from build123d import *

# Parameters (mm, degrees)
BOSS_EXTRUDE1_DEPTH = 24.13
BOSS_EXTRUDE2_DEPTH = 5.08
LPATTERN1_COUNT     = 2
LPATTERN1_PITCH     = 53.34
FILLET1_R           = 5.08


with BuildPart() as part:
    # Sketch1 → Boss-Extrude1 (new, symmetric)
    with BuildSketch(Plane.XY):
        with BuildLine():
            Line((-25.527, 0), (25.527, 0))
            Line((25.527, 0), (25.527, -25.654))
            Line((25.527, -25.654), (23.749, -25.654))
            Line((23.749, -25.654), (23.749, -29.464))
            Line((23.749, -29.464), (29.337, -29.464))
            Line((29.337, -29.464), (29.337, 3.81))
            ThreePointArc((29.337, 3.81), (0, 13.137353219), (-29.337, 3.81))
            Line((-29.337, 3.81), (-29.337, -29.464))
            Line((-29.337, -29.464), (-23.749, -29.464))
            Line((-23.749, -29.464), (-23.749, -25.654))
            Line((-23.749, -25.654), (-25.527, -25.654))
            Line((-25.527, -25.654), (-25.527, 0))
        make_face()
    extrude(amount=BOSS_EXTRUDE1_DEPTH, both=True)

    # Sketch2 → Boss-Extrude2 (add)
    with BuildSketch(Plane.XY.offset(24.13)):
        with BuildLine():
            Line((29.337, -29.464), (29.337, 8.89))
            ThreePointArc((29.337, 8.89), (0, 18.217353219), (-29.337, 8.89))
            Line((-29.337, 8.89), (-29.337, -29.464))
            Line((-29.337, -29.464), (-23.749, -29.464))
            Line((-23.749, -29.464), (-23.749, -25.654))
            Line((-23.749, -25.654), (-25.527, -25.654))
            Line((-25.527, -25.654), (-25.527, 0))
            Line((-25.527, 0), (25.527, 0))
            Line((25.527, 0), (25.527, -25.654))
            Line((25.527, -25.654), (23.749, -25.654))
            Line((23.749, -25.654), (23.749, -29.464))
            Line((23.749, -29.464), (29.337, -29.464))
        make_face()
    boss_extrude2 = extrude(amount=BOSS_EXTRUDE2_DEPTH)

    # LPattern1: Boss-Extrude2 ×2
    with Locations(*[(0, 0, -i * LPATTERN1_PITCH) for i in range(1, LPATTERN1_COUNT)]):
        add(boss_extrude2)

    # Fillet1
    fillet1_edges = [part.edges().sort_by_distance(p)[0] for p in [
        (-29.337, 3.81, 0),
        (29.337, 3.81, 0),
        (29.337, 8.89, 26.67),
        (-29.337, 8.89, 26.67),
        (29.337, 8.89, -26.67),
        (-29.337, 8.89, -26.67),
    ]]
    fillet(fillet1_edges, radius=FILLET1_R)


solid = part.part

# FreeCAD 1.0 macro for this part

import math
import FreeCAD as App
import Part
import Sketcher
from FreeCAD import Vector
Q = App.Units.Quantity


def edges_at(feature, points):
    """Names of the edges that pass closest to the given points."""
    edges = feature.Shape.Edges
    near = lambda p: min(range(len(edges)), key=lambda i: edges[i].distToShape(Part.Vertex(*p))[0])
    return sorted({f"Edge{near(p) + 1}" for p in points})

doc = App.newDocument("Part")
body = doc.addObject("PartDesign::Body", "Body")

sketch1 = body.newObject("Sketcher::SketchObject", "Sketch")
sketch1.AttachmentSupport = (doc.getObject("XY_Plane"), [""])
sketch1.MapMode = "FlatFace"
sketch1.addGeometry([
    Part.LineSegment(Vector(-25.5, 0, 0), Vector(25.5, 0, 0)),
    Part.LineSegment(Vector(25.5, 0, 0), Vector(25.5, -25.7, 0)),
    Part.LineSegment(Vector(25.5, -25.7, 0), Vector(23.7, -25.7, 0)),
    Part.LineSegment(Vector(23.7, -25.7, 0), Vector(23.7, -29.5, 0)),
    Part.LineSegment(Vector(23.7, -29.5, 0), Vector(29.3, -29.5, 0)),
    Part.LineSegment(Vector(29.3, -29.5, 0), Vector(29.3, 3.8, 0)),
    Part.ArcOfCircle(Part.Circle(Vector(0, -37.7, 0), Vector(0, 0, 1), 50.8), math.radians(55), math.radians(125)),
    Part.LineSegment(Vector(-29.3, 3.8, 0), Vector(-29.3, -29.5, 0)),
    Part.LineSegment(Vector(-29.3, -29.5, 0), Vector(-23.7, -29.5, 0)),
    Part.LineSegment(Vector(-23.7, -29.5, 0), Vector(-23.7, -25.7, 0)),
    Part.LineSegment(Vector(-23.7, -25.7, 0), Vector(-25.5, -25.7, 0)),
    Part.LineSegment(Vector(-25.5, -25.7, 0), Vector(-25.5, 0, 0)),
], False)
sketch1.addConstraint([
    Sketcher.Constraint("Coincident", 0, 2, 1, 1),
    Sketcher.Constraint("Coincident", 1, 2, 2, 1),
    Sketcher.Constraint("Coincident", 2, 2, 3, 1),
    Sketcher.Constraint("Coincident", 3, 2, 4, 1),
    Sketcher.Constraint("Coincident", 4, 2, 5, 1),
    Sketcher.Constraint("Coincident", 5, 2, 6, 1),
    Sketcher.Constraint("Coincident", 6, 2, 7, 1),
    Sketcher.Constraint("Coincident", 7, 2, 8, 1),
    Sketcher.Constraint("Coincident", 8, 2, 9, 1),
    Sketcher.Constraint("Coincident", 9, 2, 10, 1),
    Sketcher.Constraint("Coincident", 10, 2, 11, 1),
    Sketcher.Constraint("Coincident", 11, 2, 0, 1),
    Sketcher.Constraint("Horizontal", 0),
    Sketcher.Constraint("Vertical", 1),
    Sketcher.Constraint("Horizontal", 2),
    Sketcher.Constraint("Vertical", 3),
    Sketcher.Constraint("Horizontal", 4),
    Sketcher.Constraint("Vertical", 5),
    Sketcher.Constraint("Vertical", 7),
    Sketcher.Constraint("Horizontal", 8),
    Sketcher.Constraint("Vertical", 9),
    Sketcher.Constraint("Horizontal", 10),
    Sketcher.Constraint("Vertical", 11),
    Sketcher.Constraint("Symmetric", 0, 2, 11, 2, -1, 1),
    Sketcher.Constraint("Symmetric", 5, 2, 6, 2, -2),
    Sketcher.Constraint("Symmetric", 3, 2, 8, 2, -2),
    Sketcher.Constraint("Horizontal", 2, 2, 9, 2),
    Sketcher.Constraint("Radius", 6, Q("2 in")),
    Sketcher.Constraint("DistanceX", 0, 1, 0, 2, Q("2.01 in")),
    Sketcher.Constraint("DistanceX", 2, 2, 2, 1, Q("0.07 in")),
    Sketcher.Constraint("DistanceX", 4, 1, 4, 2, Q("0.22 in")),
    Sketcher.Constraint("DistanceY", 1, 2, 1, 1, Q("1.01 in")),
    Sketcher.Constraint("DistanceY", 3, 2, 3, 1, Q("0.15 in")),
    Sketcher.Constraint("DistanceY", 5, 1, 5, 2, Q("1.31 in")),
])
pad1 = body.newObject("PartDesign::Pad", "Pad")
pad1.Profile = sketch1
pad1.Length = Q("1.9 in")
pad1.Midplane = True

sketch2 = body.newObject("Sketcher::SketchObject", "Sketch001")
sketch2.AttachmentSupport = (doc.getObject("XY_Plane"), [""])
sketch2.MapMode = "FlatFace"
sketch2.AttachmentOffset = App.Placement(Vector(0, 0, 0.95 * 25.4), App.Rotation())
sketch2.addGeometry([
    Part.LineSegment(Vector(29.3, -29.5, 0), Vector(29.3, 8.9, 0)),
    Part.ArcOfCircle(Part.Circle(Vector(0, -32.6, 0), Vector(0, 0, 1), 50.8), math.radians(55), math.radians(125)),
    Part.LineSegment(Vector(-29.3, 8.9, 0), Vector(-29.3, -29.5, 0)),
    Part.LineSegment(Vector(-29.3, -29.5, 0), Vector(-23.7, -29.5, 0)),
    Part.LineSegment(Vector(-23.7, -29.5, 0), Vector(-23.7, -25.7, 0)),
    Part.LineSegment(Vector(-23.7, -25.7, 0), Vector(-25.5, -25.7, 0)),
    Part.LineSegment(Vector(-25.5, -25.7, 0), Vector(-25.5, 0, 0)),
    Part.LineSegment(Vector(-25.5, 0, 0), Vector(25.5, 0, 0)),
    Part.LineSegment(Vector(25.5, 0, 0), Vector(25.5, -25.7, 0)),
    Part.LineSegment(Vector(25.5, -25.7, 0), Vector(23.7, -25.7, 0)),
    Part.LineSegment(Vector(23.7, -25.7, 0), Vector(23.7, -29.5, 0)),
    Part.LineSegment(Vector(23.7, -29.5, 0), Vector(29.3, -29.5, 0)),
], False)
sketch2.addConstraint([
    Sketcher.Constraint("Coincident", 0, 2, 1, 1),
    Sketcher.Constraint("Coincident", 1, 2, 2, 1),
    Sketcher.Constraint("Coincident", 2, 2, 3, 1),
    Sketcher.Constraint("Coincident", 3, 2, 4, 1),
    Sketcher.Constraint("Coincident", 4, 2, 5, 1),
    Sketcher.Constraint("Coincident", 5, 2, 6, 1),
    Sketcher.Constraint("Coincident", 6, 2, 7, 1),
    Sketcher.Constraint("Coincident", 7, 2, 8, 1),
    Sketcher.Constraint("Coincident", 8, 2, 9, 1),
    Sketcher.Constraint("Coincident", 9, 2, 10, 1),
    Sketcher.Constraint("Coincident", 10, 2, 11, 1),
    Sketcher.Constraint("Coincident", 11, 2, 0, 1),
    Sketcher.Constraint("Vertical", 0),
    Sketcher.Constraint("Vertical", 2),
    Sketcher.Constraint("Horizontal", 3),
    Sketcher.Constraint("Vertical", 4),
    Sketcher.Constraint("Horizontal", 5),
    Sketcher.Constraint("Vertical", 6),
    Sketcher.Constraint("Horizontal", 7),
    Sketcher.Constraint("Vertical", 8),
    Sketcher.Constraint("Horizontal", 9),
    Sketcher.Constraint("Vertical", 10),
    Sketcher.Constraint("Horizontal", 11),
    Sketcher.Constraint("Symmetric", 6, 2, 7, 2, -1, 1),
    Sketcher.Constraint("Symmetric", 0, 2, 1, 2, -2),
    Sketcher.Constraint("Symmetric", 4, 2, 9, 2, -2),
    Sketcher.Constraint("Horizontal", 3, 2, 10, 2),
    Sketcher.Constraint("Radius", 1, Q("2 in")),
    Sketcher.Constraint("DistanceX", 3, 1, 3, 2, Q("0.22 in")),
    Sketcher.Constraint("DistanceX", 5, 2, 5, 1, Q("0.07 in")),
    Sketcher.Constraint("DistanceX", 7, 1, 7, 2, Q("2.01 in")),
    Sketcher.Constraint("DistanceY", 0, 1, 0, 2, Q("1.51 in")),
    Sketcher.Constraint("DistanceY", 4, 1, 4, 2, Q("0.15 in")),
    Sketcher.Constraint("DistanceY", 6, 1, 6, 2, Q("1.01 in")),
])
pad2 = body.newObject("PartDesign::Pad", "Pad001")
pad2.Profile = sketch2
pad2.Length = Q("0.2 in")
doc.recompute()

linearpattern = body.newObject("PartDesign::LinearPattern", "LinearPattern")
linearpattern.Originals = [pad2]
linearpattern.Direction = (doc.getObject("Z_Axis"), [""])
linearpattern.Mode = "offset"
linearpattern.Offset = Q("2.1 in")
linearpattern.Occurrences = 2
linearpattern.Reversed = True
body.Tip = linearpattern
doc.recompute()

fillet = body.newObject("PartDesign::Fillet", "Fillet")
fillet.Base = (linearpattern, edges_at(linearpattern, [
    (-29.337, 3.81, 0),
    (29.337, 3.81, 0),
    (29.337, 8.89, 26.67),
    (-29.337, 8.89, 26.67),
    (29.337, 8.89, -26.67),
    (-29.337, 8.89, -26.67),
]))
fillet.Radius = Q("0.2 in")

doc.recompute()
